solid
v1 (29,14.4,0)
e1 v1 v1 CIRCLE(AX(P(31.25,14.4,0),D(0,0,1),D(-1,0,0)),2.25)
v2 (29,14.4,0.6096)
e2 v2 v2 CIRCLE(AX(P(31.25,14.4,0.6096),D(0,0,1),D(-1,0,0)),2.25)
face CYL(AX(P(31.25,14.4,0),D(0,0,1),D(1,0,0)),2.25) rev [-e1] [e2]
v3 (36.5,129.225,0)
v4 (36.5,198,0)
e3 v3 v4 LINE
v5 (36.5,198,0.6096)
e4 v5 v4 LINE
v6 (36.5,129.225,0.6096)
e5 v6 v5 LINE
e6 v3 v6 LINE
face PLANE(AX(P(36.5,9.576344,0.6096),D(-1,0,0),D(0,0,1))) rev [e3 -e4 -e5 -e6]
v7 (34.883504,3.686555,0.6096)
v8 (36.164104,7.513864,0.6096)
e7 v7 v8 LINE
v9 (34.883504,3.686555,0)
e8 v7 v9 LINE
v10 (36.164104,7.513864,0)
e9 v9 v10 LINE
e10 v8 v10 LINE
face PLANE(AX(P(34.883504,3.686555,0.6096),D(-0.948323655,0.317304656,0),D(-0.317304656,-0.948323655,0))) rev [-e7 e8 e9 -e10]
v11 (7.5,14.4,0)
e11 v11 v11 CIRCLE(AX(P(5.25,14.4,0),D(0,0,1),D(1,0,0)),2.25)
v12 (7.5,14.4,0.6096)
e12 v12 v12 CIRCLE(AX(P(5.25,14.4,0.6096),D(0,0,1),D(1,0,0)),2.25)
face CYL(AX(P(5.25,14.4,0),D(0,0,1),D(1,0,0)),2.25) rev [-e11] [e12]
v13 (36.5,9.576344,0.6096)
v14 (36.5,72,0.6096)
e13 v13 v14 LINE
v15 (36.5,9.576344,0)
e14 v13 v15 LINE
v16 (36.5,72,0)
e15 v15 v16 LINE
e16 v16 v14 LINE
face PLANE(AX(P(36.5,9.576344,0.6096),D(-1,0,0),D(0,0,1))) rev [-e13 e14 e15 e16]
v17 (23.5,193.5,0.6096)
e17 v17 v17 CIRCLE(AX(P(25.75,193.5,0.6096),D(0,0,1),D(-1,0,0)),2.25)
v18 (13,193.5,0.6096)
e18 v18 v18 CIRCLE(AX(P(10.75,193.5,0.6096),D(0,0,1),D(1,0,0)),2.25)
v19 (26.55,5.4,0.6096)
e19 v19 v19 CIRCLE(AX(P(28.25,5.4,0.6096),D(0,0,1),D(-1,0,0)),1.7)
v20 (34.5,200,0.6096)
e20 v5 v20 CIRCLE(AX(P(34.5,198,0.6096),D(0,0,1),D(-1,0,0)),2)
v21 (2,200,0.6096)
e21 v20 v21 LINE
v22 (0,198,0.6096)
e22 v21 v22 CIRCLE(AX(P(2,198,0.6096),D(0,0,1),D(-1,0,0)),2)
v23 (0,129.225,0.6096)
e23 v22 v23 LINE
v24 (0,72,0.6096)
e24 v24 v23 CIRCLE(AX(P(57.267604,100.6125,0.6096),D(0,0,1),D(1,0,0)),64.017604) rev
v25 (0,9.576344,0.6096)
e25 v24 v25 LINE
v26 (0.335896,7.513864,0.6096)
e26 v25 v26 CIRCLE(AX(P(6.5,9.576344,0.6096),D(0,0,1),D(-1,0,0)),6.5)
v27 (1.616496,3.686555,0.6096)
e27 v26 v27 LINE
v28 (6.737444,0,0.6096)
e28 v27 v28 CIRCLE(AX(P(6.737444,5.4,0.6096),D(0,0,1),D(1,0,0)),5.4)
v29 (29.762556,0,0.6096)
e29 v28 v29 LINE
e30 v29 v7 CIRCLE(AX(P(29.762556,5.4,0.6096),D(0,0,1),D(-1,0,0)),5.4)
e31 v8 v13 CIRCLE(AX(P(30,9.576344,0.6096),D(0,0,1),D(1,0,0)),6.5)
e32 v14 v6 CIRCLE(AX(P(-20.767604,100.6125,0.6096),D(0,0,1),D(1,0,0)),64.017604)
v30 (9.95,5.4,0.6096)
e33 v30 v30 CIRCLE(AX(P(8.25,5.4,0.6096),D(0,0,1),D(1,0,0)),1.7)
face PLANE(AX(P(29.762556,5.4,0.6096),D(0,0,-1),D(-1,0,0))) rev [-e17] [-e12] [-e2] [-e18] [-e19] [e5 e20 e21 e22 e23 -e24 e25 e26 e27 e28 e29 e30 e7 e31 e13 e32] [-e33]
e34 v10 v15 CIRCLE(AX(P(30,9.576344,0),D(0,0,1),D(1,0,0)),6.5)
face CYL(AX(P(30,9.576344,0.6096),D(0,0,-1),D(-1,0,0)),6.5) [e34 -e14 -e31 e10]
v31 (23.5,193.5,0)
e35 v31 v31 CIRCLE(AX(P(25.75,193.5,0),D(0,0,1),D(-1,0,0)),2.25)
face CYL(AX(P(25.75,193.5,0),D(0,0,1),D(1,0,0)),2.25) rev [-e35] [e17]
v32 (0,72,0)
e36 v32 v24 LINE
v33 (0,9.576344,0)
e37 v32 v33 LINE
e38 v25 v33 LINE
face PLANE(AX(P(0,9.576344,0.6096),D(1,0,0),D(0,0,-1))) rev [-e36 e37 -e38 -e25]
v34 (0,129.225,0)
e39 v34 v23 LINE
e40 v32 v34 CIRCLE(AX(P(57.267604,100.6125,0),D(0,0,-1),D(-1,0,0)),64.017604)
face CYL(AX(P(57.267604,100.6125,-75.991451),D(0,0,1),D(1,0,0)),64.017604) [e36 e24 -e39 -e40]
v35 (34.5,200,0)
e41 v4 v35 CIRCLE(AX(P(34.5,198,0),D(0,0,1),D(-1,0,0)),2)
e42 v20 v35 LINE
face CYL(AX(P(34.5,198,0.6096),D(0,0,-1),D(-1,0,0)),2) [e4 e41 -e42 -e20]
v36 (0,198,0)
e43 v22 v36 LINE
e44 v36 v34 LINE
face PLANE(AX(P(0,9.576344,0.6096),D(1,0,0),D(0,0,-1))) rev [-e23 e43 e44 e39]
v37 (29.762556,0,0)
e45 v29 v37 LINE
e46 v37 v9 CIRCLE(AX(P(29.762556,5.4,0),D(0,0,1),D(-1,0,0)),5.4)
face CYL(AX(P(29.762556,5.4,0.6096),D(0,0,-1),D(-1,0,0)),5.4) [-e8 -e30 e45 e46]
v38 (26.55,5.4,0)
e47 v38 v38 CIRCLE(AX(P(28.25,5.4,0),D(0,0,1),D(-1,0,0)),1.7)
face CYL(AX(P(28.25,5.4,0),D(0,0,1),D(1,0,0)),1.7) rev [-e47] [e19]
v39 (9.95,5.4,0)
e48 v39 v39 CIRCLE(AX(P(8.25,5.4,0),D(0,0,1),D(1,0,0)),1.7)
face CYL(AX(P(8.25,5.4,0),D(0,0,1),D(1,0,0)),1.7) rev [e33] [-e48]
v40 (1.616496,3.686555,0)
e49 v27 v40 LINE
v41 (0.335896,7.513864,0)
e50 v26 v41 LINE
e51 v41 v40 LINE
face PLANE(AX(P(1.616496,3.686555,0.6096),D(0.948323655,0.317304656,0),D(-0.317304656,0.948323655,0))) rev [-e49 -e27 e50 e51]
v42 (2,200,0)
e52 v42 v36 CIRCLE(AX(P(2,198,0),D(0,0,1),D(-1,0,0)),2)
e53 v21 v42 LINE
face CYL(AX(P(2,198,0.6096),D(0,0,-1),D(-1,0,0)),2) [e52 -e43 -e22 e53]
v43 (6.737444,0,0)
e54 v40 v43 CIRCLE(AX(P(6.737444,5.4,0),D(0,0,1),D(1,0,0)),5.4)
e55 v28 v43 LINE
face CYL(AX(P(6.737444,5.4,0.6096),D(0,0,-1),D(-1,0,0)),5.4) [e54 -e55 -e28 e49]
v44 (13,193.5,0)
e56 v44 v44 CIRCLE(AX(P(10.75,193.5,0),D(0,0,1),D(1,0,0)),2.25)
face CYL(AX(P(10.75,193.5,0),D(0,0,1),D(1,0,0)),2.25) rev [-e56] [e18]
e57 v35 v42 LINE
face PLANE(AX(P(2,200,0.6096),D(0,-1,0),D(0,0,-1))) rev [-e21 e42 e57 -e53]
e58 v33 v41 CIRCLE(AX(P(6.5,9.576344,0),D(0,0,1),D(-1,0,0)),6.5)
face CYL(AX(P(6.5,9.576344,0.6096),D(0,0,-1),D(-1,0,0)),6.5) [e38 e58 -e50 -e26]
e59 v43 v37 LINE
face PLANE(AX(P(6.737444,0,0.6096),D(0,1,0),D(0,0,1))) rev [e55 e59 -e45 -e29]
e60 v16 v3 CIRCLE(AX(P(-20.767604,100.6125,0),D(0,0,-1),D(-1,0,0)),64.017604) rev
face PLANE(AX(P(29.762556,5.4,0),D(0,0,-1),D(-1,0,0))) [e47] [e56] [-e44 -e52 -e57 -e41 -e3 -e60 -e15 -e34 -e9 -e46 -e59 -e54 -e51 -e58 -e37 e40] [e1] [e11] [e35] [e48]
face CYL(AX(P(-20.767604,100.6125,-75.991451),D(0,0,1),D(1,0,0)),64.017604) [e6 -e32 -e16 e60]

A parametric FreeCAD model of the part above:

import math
import FreeCAD as App
import Part
import Sketcher
Q = App.Units.Quantity

doc = App.newDocument("Part")
body = doc.addObject("PartDesign::Body", "Body")

sketch1 = doc.addObject("Sketcher::SketchObject", "Sketch")
body.addObject(sketch1)
sketch1.AttachmentSupport = (doc.XY_Plane, [""])
sketch1.MapMode = "FlatFace"
sketch1.addGeometry([
    Part.LineSegment(App.Vector(34.9, 3.7, 0), App.Vector(36.2, 7.5, 0)),
    Part.ArcOfCircle(Part.Circle(App.Vector(30, 9.6, 0), App.Vector(0, 0, 1), 6.5), math.radians(-18.5), math.radians(0)),
    Part.LineSegment(App.Vector(36.5, 9.6, 0), App.Vector(36.5, 198, 0)),
    Part.ArcOfCircle(Part.Circle(App.Vector(34.5, 198, 0), App.Vector(0, 0, 1), 2), math.radians(0), math.radians(90)),
    Part.LineSegment(App.Vector(34.5, 200, 0), App.Vector(2, 200, 0)),
    Part.ArcOfCircle(Part.Circle(App.Vector(2, 198, 0), App.Vector(0, 0, 1), 2), math.radians(90), math.radians(180)),
    Part.LineSegment(App.Vector(0, 198, 0), App.Vector(0, 9.6, 0)),
    Part.ArcOfCircle(Part.Circle(App.Vector(6.5, 9.6, 0), App.Vector(0, 0, 1), 6.5), math.radians(180), math.radians(198.5)),
    Part.LineSegment(App.Vector(0.3, 7.5, 0), App.Vector(1.6, 3.7, 0)),
    Part.ArcOfCircle(Part.Circle(App.Vector(6.7, 5.4, 0), App.Vector(0, 0, 1), 5.4), math.radians(-161), math.radians(-90)),
    Part.LineSegment(App.Vector(6.7, 0, 0), App.Vector(29.8, 0, 0)),
    Part.ArcOfCircle(Part.Circle(App.Vector(29.8, 5.4, 0), App.Vector(0, 0, 1), 5.4), math.radians(-90), math.radians(-19)),
], False)
sketch1.addConstraint([
    Sketcher.Constraint("Tangent", 0, 2, 1, 1),
    Sketcher.Constraint("Tangent", 1, 2, 2, 1),
    Sketcher.Constraint("Tangent", 2, 2, 3, 1),
    Sketcher.Constraint("Tangent", 3, 2, 4, 1),
    Sketcher.Constraint("Tangent", 4, 2, 5, 1),
    Sketcher.Constraint("Tangent", 5, 2, 6, 1),
    Sketcher.Constraint("Tangent", 6, 2, 7, 1),
    Sketcher.Constraint("Tangent", 7, 2, 8, 1),
    Sketcher.Constraint("Tangent", 8, 2, 9, 1),
    Sketcher.Constraint("Tangent", 9, 2, 10, 1),
    Sketcher.Constraint("Tangent", 10, 2, 11, 1),
    Sketcher.Constraint("Tangent", 11, 2, 0, 1),
    Sketcher.Constraint("Vertical", 2),
    Sketcher.Constraint("Horizontal", 4),
    Sketcher.Constraint("Vertical", 6),
    Sketcher.Constraint("Horizontal", 10),
    Sketcher.Constraint("Equal", 3, 5),
    Sketcher.Constraint("Equal", 1, 7),
    Sketcher.Constraint("Equal", 9, 11),
    Sketcher.Constraint("PointOnObject", 5, 2, -2),
    Sketcher.Constraint("PointOnObject", 9, 2, -1),
    Sketcher.Constraint("Horizontal", 1, 3, 7, 3),
    Sketcher.Constraint("Horizontal", 0, 2, 7, 2),
    Sketcher.Constraint("Radius", 3, 2.0),
    Sketcher.Constraint("Radius", 1, 6.5),
    Sketcher.Constraint("Radius", 9, 5.4),
    Sketcher.Constraint("DistanceX", 4, 2, 4, 1, 32.5),
    Sketcher.Constraint("DistanceY", -1, 1, 3, 3, 198.0),
    Sketcher.Constraint("Angle", 0, Q("71.5 deg")),
    Sketcher.Constraint("DistanceX", 7, 2, 8, 2, 1.2806),
])
pad1 = doc.addObject("PartDesign::Pad", "Pad")
body.addObject(pad1)
pad1.Profile = sketch1
pad1.Length = 0.6096

sketch2 = doc.addObject("Sketcher::SketchObject", "Sketch001")
body.addObject(sketch2)
sketch2.AttachmentSupport = (doc.XY_Plane, [""])
sketch2.MapMode = "FlatFace"
sketch2.AttachmentOffset = App.Placement(App.Vector(0, 0, 0.6096), App.Rotation())
sketch2.addGeometry([
    Part.Circle(App.Vector(8.2, 5.4, 0), App.Vector(0, 0, 1), 1.7),
    Part.Circle(App.Vector(5.2, 14.4, 0), App.Vector(0, 0, 1), 2.2),
    Part.Circle(App.Vector(10.8, 193.5, 0), App.Vector(0, 0, 1), 2.2),
    Part.Circle(App.Vector(28.2, 5.4, 0), App.Vector(0, 0, 1), 1.7),
    Part.Circle(App.Vector(31.2, 14.4, 0), App.Vector(0, 0, 1), 2.2),
    Part.Circle(App.Vector(25.8, 193.5, 0), App.Vector(0, 0, 1), 2.2),
], False)
sketch2.addConstraint([
    Sketcher.Constraint("Equal", 1, 2),
    Sketcher.Constraint("Equal", 0, 3),
    Sketcher.Constraint("Equal", 2, 4),
    Sketcher.Constraint("Equal", 4, 5),
    Sketcher.Constraint("Horizontal", 0, 3, 3, 3),
    Sketcher.Constraint("Horizontal", 1, 3, 4, 3),
    Sketcher.Constraint("Horizontal", 2, 3, 5, 3),
    Sketcher.Constraint("Diameter", 0, 3.4),
    Sketcher.Constraint("Diameter", 1, 4.5),
    Sketcher.Constraint("DistanceX", 1, 3, 0, 3, 3.0),
    Sketcher.Constraint("DistanceY", 0, 3, 1, 3, 9.0),
    Sketcher.Constraint("DistanceX", 0, 3, 3, 3, 20.0),
    Sketcher.Constraint("DistanceX", 3, 3, 4, 3, 3.0),
    Sketcher.Constraint("DistanceX", 2, 3, 5, 3, 15.0),
    Sketcher.Constraint("DistanceY", -1, 1, 0, 3, 5.4),
    Sketcher.Constraint("DistanceY", -1, 1, 2, 3, 193.5),
    Sketcher.Constraint("DistanceX", 1, 3, 2, 3, 5.5),
    Sketcher.Constraint("DistanceX", -1, 1, 0, 3, 8.25),
])
pocket1 = doc.addObject("PartDesign::Pocket", "Pocket")
body.addObject(pocket1)
pocket1.Profile = sketch2
pocket1.Type = "ThroughAll"

sketch3 = doc.addObject("Sketcher::SketchObject", "Sketch002")
body.addObject(sketch3)
sketch3.AttachmentSupport = (doc.XY_Plane, [""])
sketch3.MapMode = "FlatFace"
sketch3.AttachmentOffset = App.Placement(App.Vector(0, 0, 0.6096), App.Rotation())
sketch3.addGeometry([
    Part.LineSegment(App.Vector(0, 72, 0), App.Vector(36, 72, 0)),
    Part.ArcOfCircle(Part.Circle(App.Vector(-21, 101, 0), App.Vector(0, 0, 1), 64), math.radians(-27), math.radians(27)),
    Part.LineSegment(App.Vector(36, 129, 0), App.Vector(0, 129, 0)),
    Part.ArcOfCircle(Part.Circle(App.Vector(57, 101, 0), App.Vector(0, 0, 1), 64), math.radians(153), math.radians(207)),
], False)
sketch3.addConstraint([
    Sketcher.Constraint("Coincident", 0, 2, 1, 1),
    Sketcher.Constraint("Coincident", 1, 2, 2, 1),
    Sketcher.Constraint("Coincident", 2, 2, 3, 1),
    Sketcher.Constraint("Coincident", 3, 2, 0, 1),
    Sketcher.Constraint("Horizontal", 0),
    Sketcher.Constraint("Horizontal", 2),
    Sketcher.Constraint("Equal", 1, 3),
    Sketcher.Constraint("PointOnObject", 2, 2, -2),
    Sketcher.Constraint("PointOnObject", 3, 2, -2),
    Sketcher.Constraint("Horizontal", 1, 3, 3, 3),
    Sketcher.Constraint("DistanceX", 0, 1, 0, 2, 36.5),
    Sketcher.Constraint("DistanceY", -1, 1, 0, 2, 72.0),
    Sketcher.Constraint("DistanceY", -1, 1, 1, 2, 129.225),
    Sketcher.Constraint("Radius", 1, 64.017604),
])
pad2 = doc.addObject("PartDesign::Pad", "Pad001")
body.addObject(pad2)
pad2.Profile = sketch3
pad2.Length = 0.6096
pad2.Reversed = True

doc.recompute()
